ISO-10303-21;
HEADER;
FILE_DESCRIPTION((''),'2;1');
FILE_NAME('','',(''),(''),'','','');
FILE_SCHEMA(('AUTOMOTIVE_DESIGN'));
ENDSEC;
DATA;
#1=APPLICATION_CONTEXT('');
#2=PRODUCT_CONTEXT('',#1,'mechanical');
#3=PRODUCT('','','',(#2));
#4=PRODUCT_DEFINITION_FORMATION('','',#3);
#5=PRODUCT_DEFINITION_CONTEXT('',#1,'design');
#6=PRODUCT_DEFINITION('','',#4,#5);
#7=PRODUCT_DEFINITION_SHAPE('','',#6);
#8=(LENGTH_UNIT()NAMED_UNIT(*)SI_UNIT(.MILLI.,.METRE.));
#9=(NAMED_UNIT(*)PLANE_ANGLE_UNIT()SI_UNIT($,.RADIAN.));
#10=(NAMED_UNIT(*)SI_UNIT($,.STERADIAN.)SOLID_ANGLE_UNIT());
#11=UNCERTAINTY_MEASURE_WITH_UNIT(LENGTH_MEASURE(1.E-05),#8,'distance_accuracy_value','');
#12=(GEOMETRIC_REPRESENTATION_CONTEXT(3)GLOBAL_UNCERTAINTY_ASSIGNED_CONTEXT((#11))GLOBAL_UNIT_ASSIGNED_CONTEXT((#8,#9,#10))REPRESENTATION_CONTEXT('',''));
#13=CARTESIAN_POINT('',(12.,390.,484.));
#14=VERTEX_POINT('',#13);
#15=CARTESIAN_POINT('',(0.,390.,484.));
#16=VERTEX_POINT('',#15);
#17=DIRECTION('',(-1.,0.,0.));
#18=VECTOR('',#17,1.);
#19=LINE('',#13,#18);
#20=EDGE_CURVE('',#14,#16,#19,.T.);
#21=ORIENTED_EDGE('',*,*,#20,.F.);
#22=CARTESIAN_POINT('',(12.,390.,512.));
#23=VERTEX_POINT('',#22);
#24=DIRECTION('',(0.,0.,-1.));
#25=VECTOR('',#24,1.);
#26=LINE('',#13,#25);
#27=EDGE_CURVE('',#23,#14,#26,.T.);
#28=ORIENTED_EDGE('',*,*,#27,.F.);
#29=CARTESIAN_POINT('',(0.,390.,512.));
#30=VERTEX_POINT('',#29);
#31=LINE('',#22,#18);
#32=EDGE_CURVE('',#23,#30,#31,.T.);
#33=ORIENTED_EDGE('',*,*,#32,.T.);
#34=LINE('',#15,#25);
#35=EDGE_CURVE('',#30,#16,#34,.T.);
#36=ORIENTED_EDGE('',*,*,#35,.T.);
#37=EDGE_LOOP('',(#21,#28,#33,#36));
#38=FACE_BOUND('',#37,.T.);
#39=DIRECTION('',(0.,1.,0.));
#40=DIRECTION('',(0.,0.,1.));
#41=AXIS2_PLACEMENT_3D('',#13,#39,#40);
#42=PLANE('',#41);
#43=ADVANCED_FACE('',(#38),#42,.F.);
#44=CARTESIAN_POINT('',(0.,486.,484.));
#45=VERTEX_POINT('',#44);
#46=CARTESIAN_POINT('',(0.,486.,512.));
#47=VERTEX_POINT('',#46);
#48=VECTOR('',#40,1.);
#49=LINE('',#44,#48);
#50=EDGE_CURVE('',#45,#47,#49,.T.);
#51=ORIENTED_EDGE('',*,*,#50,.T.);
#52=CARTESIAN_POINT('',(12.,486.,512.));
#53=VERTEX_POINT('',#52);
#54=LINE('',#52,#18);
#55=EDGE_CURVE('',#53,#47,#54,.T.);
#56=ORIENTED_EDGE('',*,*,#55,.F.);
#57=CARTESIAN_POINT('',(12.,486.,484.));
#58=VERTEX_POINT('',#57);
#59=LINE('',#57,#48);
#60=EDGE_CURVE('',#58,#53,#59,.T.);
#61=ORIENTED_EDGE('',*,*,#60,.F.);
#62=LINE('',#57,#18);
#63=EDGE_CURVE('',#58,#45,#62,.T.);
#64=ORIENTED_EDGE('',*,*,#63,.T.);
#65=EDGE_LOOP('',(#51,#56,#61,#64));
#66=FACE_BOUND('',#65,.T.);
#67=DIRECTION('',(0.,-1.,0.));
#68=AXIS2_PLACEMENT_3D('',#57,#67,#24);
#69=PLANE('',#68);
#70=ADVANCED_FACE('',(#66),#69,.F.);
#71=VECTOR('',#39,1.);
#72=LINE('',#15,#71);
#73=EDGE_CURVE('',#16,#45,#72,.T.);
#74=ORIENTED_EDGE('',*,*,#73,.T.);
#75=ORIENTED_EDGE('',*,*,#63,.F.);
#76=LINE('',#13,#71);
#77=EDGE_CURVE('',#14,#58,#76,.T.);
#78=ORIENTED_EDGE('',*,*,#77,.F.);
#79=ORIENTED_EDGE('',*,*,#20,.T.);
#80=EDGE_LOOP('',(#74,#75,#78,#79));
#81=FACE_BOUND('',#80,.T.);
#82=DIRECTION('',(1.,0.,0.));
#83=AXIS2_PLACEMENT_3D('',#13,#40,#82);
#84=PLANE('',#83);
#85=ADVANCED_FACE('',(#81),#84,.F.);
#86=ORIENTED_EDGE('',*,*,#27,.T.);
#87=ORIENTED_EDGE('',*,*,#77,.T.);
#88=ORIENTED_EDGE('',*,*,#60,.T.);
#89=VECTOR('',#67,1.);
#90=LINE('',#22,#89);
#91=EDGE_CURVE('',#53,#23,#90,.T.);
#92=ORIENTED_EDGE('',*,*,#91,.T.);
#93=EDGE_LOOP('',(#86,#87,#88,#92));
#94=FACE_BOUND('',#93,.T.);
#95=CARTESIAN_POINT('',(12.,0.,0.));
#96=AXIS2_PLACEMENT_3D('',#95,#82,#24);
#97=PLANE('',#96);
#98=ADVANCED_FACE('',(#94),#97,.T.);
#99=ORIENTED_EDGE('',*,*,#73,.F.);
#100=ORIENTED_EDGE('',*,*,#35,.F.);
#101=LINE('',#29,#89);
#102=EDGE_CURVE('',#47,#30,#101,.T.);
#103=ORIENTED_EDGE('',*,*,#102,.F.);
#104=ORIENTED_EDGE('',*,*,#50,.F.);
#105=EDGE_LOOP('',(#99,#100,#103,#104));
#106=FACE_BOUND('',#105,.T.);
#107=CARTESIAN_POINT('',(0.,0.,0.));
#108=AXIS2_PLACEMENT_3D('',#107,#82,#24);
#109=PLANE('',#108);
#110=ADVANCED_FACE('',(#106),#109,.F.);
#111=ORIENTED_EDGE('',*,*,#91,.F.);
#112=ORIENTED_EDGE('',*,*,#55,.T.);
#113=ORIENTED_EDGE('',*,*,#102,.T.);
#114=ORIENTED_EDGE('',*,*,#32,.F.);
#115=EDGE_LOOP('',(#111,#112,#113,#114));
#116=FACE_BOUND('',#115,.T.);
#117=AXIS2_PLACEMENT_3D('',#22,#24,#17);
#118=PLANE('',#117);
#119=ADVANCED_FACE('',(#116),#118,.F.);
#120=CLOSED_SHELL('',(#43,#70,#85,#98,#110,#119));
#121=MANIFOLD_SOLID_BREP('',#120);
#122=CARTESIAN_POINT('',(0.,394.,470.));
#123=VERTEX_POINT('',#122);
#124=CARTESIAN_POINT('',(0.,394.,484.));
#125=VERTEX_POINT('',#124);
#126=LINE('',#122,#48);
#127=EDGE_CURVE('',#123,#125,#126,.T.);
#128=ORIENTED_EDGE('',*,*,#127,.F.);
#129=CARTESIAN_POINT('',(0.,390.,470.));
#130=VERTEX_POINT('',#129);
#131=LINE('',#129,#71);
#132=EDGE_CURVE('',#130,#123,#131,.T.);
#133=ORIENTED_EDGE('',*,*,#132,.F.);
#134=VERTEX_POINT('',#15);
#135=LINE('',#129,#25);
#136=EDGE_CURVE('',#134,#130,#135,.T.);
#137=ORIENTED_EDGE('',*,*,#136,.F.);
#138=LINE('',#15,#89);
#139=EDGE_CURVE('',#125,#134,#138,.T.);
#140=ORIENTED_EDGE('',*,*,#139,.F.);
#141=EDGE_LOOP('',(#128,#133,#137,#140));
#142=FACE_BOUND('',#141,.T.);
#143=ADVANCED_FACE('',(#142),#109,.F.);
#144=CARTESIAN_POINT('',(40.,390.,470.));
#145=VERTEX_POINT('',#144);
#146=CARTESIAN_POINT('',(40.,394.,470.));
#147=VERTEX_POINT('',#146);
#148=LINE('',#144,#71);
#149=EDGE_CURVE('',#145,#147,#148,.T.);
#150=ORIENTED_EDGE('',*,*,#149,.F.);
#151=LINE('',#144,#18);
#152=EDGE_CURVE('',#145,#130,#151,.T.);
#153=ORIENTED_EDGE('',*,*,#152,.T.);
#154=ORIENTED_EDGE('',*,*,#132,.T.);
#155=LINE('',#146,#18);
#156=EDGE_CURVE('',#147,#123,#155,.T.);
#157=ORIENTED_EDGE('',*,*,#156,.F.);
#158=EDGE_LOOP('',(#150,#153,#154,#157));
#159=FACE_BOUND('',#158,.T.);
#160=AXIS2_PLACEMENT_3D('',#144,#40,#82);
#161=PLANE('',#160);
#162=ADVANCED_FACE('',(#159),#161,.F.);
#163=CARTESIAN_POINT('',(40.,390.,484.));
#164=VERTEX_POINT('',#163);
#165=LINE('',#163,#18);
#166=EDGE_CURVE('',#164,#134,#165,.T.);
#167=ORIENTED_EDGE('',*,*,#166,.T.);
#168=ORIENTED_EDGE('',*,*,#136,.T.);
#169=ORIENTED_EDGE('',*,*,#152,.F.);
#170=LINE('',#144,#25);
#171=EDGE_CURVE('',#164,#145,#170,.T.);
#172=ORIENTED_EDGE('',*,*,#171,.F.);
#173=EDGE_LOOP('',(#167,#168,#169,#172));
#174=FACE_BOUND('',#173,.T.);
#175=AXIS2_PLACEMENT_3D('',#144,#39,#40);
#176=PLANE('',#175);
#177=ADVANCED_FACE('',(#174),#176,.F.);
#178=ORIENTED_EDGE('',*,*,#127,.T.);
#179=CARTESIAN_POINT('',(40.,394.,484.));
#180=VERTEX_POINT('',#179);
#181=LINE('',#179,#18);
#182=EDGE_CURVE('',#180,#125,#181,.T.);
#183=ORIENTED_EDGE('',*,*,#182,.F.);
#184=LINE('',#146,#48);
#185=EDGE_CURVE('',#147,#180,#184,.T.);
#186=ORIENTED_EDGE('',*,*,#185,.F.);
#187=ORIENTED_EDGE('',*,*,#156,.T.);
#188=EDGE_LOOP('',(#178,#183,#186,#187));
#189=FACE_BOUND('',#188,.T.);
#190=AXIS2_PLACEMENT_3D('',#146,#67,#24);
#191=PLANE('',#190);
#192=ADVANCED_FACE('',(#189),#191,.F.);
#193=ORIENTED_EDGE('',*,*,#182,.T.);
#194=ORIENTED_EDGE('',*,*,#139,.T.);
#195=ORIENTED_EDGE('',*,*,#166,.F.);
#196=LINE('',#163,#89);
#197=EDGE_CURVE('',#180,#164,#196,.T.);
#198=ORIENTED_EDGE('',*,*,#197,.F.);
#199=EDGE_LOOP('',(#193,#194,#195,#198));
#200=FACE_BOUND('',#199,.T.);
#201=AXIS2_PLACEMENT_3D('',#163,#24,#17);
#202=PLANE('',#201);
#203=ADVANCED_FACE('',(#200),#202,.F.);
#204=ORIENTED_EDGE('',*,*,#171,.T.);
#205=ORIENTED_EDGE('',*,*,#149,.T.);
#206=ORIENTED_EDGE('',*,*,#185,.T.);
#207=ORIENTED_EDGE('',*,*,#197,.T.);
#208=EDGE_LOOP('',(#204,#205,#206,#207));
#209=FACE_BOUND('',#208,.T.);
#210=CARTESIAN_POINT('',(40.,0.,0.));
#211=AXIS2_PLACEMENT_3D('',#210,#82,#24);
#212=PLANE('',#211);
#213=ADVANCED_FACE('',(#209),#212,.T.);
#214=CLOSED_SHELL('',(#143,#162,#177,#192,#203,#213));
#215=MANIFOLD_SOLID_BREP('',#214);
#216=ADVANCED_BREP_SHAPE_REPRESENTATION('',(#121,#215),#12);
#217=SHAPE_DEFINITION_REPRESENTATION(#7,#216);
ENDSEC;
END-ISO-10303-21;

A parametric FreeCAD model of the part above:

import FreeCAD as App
import Part
import Sketcher
from FreeCAD import Vector
Q = App.Units.Quantity

doc = App.newDocument("Part")
body = doc.addObject("PartDesign::Body", "Body")

# Sketch on YZ plane
sketch1 = body.newObject("Sketcher::SketchObject", "Sketch")
sketch1.AttachmentSupport = (doc.getObject("YZ_Plane"), [""])
sketch1.MapMode = "FlatFace"
sketch1.addGeometry([
    Part.LineSegment(Vector(486, 512, 0), Vector(390, 512, 0)),
    Part.LineSegment(Vector(390, 512, 0), Vector(390, 484, 0)),
    Part.LineSegment(Vector(390, 484, 0), Vector(486, 484, 0)),
    Part.LineSegment(Vector(486, 484, 0), Vector(486, 512, 0)),
], False)
sketch1.addConstraint([
    Sketcher.Constraint("Coincident", 0, 2, 1, 1),
    Sketcher.Constraint("Coincident", 1, 2, 2, 1),
    Sketcher.Constraint("Coincident", 2, 2, 3, 1),
    Sketcher.Constraint("Coincident", 3, 2, 0, 1),
    Sketcher.Constraint("Horizontal", 0),
    Sketcher.Constraint("Vertical", 1),
    Sketcher.Constraint("Horizontal", 2),
    Sketcher.Constraint("Vertical", 3),
    Sketcher.Constraint("DistanceX", 0, 2, 0, 1, Q("96 mm")),
    Sketcher.Constraint("DistanceY", 1, 2, 1, 1, Q("28 mm")),
    Sketcher.Constraint("DistanceX", -1, 1, 0, 2, Q("390 mm")),
    Sketcher.Constraint("DistanceY", -1, 1, 0, 2, Q("512 mm")),
])
pad1 = body.newObject("PartDesign::Pad", "Pad")
pad1.Profile = sketch1
pad1.Length = 12
body2 = doc.addObject("PartDesign::Body", "Body001")

# Sketch on YZ plane
sketch2 = body2.newObject("Sketcher::SketchObject", "Sketch001")
sketch2.AttachmentSupport = (doc.getObject("YZ_Plane001"), [""])
sketch2.MapMode = "FlatFace"
sketch2.addGeometry([
    Part.LineSegment(Vector(394, 484, 0), Vector(390, 484, 0)),
    Part.LineSegment(Vector(390, 484, 0), Vector(390, 470, 0)),
    Part.LineSegment(Vector(390, 470, 0), Vector(394, 470, 0)),
    Part.LineSegment(Vector(394, 470, 0), Vector(394, 484, 0)),
], False)
sketch2.addConstraint([
    Sketcher.Constraint("Coincident", 0, 2, 1, 1),
    Sketcher.Constraint("Coincident", 1, 2, 2, 1),
    Sketcher.Constraint("Coincident", 2, 2, 3, 1),
    Sketcher.Constraint("Coincident", 3, 2, 0, 1),
    Sketcher.Constraint("Horizontal", 0),
    Sketcher.Constraint("Vertical", 1),
    Sketcher.Constraint("Horizontal", 2),
    Sketcher.Constraint("Vertical", 3),
    Sketcher.Constraint("DistanceX", 0, 2, 0, 1, Q("4 mm")),
    Sketcher.Constraint("DistanceY", 1, 2, 1, 1, Q("14 mm")),
    Sketcher.Constraint("DistanceX", -1, 1, 0, 2, Q("390 mm")),
    Sketcher.Constraint("DistanceY", -1, 1, 0, 2, Q("484 mm")),
])
pad2 = body2.newObject("PartDesign::Pad", "Pad001")
pad2.Profile = sketch2
pad2.Length = 40

doc.recompute()
